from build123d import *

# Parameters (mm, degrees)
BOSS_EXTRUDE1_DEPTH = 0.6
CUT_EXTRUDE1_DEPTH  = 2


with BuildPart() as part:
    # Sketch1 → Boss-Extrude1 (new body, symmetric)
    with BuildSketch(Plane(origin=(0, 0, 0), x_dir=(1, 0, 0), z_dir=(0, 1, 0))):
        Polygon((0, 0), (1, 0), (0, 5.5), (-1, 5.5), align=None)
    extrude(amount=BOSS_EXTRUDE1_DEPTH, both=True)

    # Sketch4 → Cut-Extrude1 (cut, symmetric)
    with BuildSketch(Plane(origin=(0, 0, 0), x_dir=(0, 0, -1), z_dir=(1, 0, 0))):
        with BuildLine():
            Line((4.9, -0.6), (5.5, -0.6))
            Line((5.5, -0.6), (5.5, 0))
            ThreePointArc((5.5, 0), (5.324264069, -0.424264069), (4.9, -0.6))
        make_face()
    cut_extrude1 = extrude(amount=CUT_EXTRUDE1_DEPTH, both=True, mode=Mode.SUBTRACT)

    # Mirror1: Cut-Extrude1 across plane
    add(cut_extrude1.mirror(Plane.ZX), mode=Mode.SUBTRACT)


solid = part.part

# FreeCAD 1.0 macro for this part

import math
import FreeCAD as App
import Part
import Sketcher
from FreeCAD import Vector


def add_polygon(sketch, points):
    """Adds a closed chain of lines whose ends are joined by coincident constraints."""
    first, n = sketch.GeometryCount, len(points)
    for a, b in zip(points, points[1:] + points[:1]):
        sketch.addGeometry(Part.LineSegment(App.Vector(*a, 0), App.Vector(*b, 0)), False)
    for i in range(n):
        sketch.addConstraint(Sketcher.Constraint("Coincident", first + i, 2, first + (i + 1) % n, 1))

doc = App.newDocument("Part")
body = doc.addObject("PartDesign::Body", "Body")

# Sketch on XZ plane
sketch1 = doc.addObject("Sketcher::SketchObject", "Sketch")
body.addObject(sketch1)
sketch1.AttachmentSupport = (doc.XZ_Plane, [""])
sketch1.MapMode = "FlatFace"
add_polygon(sketch1, [(0, 0), (1, 0), (0, -5.5), (-1, -5.5)])  # lines 0-3
sketch1.addConstraint([
    Sketcher.Constraint("Horizontal", 0),
    Sketcher.Constraint("Horizontal", 2),
    Sketcher.Constraint("Coincident", 3, 2, -1, 1),
    Sketcher.Constraint("PointOnObject", 1, 2, -2),
    Sketcher.Constraint("Parallel", 1, 3),
    Sketcher.Constraint("DistanceX", 0, 1, 0, 2, 1.0),
    Sketcher.Constraint("DistanceY", 1, 2, -1, 1, 5.5),
])
pad1 = doc.addObject("PartDesign::Pad", "Pad")
body.addObject(pad1)
pad1.Profile = sketch1
pad1.Length = 1.2
pad1.Midplane = True

# Sketch on YZ plane
sketch2 = doc.addObject("Sketcher::SketchObject", "Sketch001")
body.addObject(sketch2)
sketch2.AttachmentSupport = (doc.YZ_Plane, [""])
sketch2.MapMode = "FlatFace"
sketch2.addGeometry([
    Part.LineSegment(Vector(-0.6, -4.9, 0), Vector(-0.6, -5.5, 0)),
    Part.LineSegment(Vector(-0.6, -5.5, 0), Vector(0, -5.5, 0)),
    Part.ArcOfCircle(Part.Circle(Vector(0, -4.9, 0), Vector(0, 0, 1), 0.6), math.radians(180), math.radians(270)),
], False)
sketch2.addConstraint([
    Sketcher.Constraint("Coincident", 0, 2, 1, 1),
    Sketcher.Constraint("Tangent", 1, 2, 2, 2),
    Sketcher.Constraint("Tangent", 2, 1, 0, 1),
    Sketcher.Constraint("Vertical", 0),
    Sketcher.Constraint("Horizontal", 1),
    Sketcher.Constraint("PointOnObject", 2, 3, -2),
    Sketcher.Constraint("Radius", 2, 0.6),
    Sketcher.Constraint("DistanceY", 2, 3, -1, 1, 4.9),
])
pocket1 = doc.addObject("PartDesign::Pocket", "Pocket")
body.addObject(pocket1)
pocket1.Profile = sketch2
pocket1.Length = 4
pocket1.Midplane = True
doc.recompute()

mirrored = doc.addObject("PartDesign::Mirrored", "Mirrored")
body.addObject(mirrored)
mirrored.Originals = [pocket1]
mirrored.MirrorPlane = (doc.XZ_Plane, [""])
body.Tip = mirrored

doc.recompute()
